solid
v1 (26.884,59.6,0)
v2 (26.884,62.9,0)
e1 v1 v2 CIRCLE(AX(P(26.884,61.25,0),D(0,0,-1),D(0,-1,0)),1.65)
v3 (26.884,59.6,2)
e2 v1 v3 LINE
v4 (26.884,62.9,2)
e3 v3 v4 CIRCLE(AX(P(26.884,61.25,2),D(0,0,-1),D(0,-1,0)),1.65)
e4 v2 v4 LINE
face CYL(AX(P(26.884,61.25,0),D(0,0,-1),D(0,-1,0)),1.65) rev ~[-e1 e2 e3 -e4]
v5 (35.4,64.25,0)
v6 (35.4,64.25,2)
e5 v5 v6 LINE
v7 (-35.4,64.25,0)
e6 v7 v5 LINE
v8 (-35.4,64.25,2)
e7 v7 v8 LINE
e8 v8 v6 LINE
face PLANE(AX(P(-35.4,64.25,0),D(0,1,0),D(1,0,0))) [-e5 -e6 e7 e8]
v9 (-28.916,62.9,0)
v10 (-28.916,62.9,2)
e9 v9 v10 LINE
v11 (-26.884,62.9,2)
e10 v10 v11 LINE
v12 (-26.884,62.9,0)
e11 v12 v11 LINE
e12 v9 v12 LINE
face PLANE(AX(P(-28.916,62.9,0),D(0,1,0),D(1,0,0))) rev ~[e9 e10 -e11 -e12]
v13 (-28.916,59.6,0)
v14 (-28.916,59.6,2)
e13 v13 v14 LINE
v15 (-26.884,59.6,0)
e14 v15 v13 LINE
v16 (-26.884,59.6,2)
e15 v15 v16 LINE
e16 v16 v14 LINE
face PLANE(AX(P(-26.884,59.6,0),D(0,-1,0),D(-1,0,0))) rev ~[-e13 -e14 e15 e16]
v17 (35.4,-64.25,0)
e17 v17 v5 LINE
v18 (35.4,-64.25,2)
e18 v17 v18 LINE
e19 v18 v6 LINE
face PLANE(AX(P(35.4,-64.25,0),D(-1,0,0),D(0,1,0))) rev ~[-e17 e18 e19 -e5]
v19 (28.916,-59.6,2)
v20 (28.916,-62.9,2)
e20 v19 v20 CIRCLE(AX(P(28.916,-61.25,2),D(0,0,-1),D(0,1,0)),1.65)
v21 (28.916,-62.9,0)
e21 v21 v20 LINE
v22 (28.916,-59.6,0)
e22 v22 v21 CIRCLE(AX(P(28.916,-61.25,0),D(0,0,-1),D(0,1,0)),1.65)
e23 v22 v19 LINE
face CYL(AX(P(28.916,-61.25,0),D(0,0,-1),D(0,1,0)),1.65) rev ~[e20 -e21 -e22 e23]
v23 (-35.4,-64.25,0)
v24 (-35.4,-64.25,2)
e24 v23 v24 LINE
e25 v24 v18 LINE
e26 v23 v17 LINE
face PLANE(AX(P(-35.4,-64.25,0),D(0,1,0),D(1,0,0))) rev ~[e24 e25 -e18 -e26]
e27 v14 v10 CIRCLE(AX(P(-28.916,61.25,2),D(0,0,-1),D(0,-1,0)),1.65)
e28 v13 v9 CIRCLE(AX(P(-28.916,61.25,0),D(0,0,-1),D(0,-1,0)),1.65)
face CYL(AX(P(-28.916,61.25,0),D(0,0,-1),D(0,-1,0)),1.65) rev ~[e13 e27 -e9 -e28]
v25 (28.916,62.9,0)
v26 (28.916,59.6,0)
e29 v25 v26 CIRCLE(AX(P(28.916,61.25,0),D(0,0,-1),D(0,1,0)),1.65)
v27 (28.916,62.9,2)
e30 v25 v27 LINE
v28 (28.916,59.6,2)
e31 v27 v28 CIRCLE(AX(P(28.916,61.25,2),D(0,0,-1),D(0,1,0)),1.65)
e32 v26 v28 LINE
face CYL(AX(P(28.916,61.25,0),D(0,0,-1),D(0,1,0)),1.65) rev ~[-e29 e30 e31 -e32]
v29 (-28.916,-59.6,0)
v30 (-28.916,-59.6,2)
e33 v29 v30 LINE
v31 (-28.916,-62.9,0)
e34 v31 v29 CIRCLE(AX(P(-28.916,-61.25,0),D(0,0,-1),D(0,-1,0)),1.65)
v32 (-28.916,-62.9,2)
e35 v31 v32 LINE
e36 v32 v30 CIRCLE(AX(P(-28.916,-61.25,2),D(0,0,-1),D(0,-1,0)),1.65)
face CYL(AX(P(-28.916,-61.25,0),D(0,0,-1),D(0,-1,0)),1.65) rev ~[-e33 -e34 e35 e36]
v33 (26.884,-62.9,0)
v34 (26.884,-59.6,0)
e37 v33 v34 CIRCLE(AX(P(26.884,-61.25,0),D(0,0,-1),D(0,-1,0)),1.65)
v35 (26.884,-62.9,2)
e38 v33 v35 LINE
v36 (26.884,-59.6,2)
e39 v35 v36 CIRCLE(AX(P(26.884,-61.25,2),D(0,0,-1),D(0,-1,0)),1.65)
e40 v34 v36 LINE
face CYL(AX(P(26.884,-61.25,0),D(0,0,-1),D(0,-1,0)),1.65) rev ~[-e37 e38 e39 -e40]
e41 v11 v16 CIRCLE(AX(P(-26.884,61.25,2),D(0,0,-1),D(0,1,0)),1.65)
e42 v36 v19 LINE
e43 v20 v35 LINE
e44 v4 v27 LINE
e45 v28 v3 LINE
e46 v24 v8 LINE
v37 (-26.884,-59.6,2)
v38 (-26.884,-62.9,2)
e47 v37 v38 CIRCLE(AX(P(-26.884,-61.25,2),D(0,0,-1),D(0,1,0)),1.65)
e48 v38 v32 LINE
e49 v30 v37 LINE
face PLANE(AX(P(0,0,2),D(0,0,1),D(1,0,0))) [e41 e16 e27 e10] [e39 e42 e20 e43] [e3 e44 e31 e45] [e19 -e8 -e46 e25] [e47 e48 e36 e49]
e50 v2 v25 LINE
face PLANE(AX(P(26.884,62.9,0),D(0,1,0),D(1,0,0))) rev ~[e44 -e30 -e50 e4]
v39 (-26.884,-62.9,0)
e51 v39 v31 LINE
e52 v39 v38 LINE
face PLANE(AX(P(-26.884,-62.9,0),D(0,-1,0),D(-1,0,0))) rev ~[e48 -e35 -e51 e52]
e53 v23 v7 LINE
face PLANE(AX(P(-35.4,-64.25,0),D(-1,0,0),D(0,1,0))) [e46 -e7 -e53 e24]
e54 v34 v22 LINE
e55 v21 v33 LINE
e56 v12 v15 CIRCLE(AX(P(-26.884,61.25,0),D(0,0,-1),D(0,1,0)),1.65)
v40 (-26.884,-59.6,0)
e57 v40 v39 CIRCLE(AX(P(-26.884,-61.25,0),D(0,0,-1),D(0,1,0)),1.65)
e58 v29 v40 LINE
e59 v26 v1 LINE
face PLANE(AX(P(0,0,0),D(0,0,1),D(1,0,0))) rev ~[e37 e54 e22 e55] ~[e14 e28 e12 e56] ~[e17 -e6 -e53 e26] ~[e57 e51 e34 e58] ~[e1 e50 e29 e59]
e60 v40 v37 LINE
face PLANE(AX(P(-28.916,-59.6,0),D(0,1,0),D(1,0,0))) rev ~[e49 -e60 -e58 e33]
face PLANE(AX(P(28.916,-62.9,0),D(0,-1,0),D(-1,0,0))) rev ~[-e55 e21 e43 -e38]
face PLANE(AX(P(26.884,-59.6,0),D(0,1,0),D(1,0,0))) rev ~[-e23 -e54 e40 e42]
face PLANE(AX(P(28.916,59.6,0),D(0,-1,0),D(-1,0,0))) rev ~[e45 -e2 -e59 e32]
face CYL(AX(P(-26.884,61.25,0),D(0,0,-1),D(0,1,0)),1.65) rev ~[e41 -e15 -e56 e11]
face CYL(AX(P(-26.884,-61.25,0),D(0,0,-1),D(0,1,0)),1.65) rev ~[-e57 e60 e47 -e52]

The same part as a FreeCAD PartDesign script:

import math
import FreeCAD as App
import Part
import Sketcher
Q = App.Units.Quantity

doc = App.newDocument("Part")
body = doc.addObject("PartDesign::Body", "Body")

sketch1 = doc.addObject("Sketcher::SketchObject", "Sketch")
body.addObject(sketch1)
sketch1.AttachmentSupport = (doc.XY_Plane, [""])
sketch1.MapMode = "FlatFace"
sketch1.addGeometry([
    Part.LineSegment(App.Vector(-35.4, 64.2, 0), App.Vector(-35.4, -64.2, 0)),
    Part.LineSegment(App.Vector(-35.4, -64.2, 0), App.Vector(35.4, -64.2, 0)),
    Part.LineSegment(App.Vector(35.4, -64.2, 0), App.Vector(35.4, 64.2, 0)),
    Part.LineSegment(App.Vector(35.4, 64.2, 0), App.Vector(-35.4, 64.2, 0)),
    Part.ArcOfCircle(Part.Circle(App.Vector(-28.9, -61.2, 0), App.Vector(0, 0, 1), 1.6), math.radians(90), math.radians(270)),
    Part.LineSegment(App.Vector(-28.9, -59.6, 0), App.Vector(-26.9, -59.6, 0)),
    Part.ArcOfCircle(Part.Circle(App.Vector(-26.9, -61.2, 0), App.Vector(0, 0, 1), 1.6), math.radians(-90), math.radians(90)),
    Part.LineSegment(App.Vector(-26.9, -62.9, 0), App.Vector(-28.9, -62.9, 0)),
    Part.ArcOfCircle(Part.Circle(App.Vector(26.9, -61.2, 0), App.Vector(0, 0, 1), 1.6), math.radians(90), math.radians(270)),
    Part.LineSegment(App.Vector(26.9, -59.6, 0), App.Vector(28.9, -59.6, 0)),
    Part.ArcOfCircle(Part.Circle(App.Vector(28.9, -61.2, 0), App.Vector(0, 0, 1), 1.6), math.radians(-90), math.radians(90)),
    Part.LineSegment(App.Vector(28.9, -62.9, 0), App.Vector(26.9, -62.9, 0)),
    Part.ArcOfCircle(Part.Circle(App.Vector(-28.9, 61.2, 0), App.Vector(0, 0, 1), 1.6), math.radians(90), math.radians(270)),
    Part.LineSegment(App.Vector(-28.9, 62.9, 0), App.Vector(-26.9, 62.9, 0)),
    Part.ArcOfCircle(Part.Circle(App.Vector(-26.9, 61.2, 0), App.Vector(0, 0, 1), 1.6), math.radians(-90), math.radians(90)),
    Part.LineSegment(App.Vector(-26.9, 59.6, 0), App.Vector(-28.9, 59.6, 0)),
    Part.ArcOfCircle(Part.Circle(App.Vector(26.9, 61.2, 0), App.Vector(0, 0, 1), 1.6), math.radians(90), math.radians(270)),
    Part.LineSegment(App.Vector(26.9, 62.9, 0), App.Vector(28.9, 62.9, 0)),
    Part.ArcOfCircle(Part.Circle(App.Vector(28.9, 61.2, 0), App.Vector(0, 0, 1), 1.6), math.radians(-90), math.radians(90)),
    Part.LineSegment(App.Vector(28.9, 59.6, 0), App.Vector(26.9, 59.6, 0)),
], False)
sketch1.addConstraint([
    Sketcher.Constraint("Coincident", 0, 2, 1, 1),
    Sketcher.Constraint("Coincident", 1, 2, 2, 1),
    Sketcher.Constraint("Coincident", 2, 2, 3, 1),
    Sketcher.Constraint("Coincident", 3, 2, 0, 1),
    Sketcher.Constraint("Tangent", 4, 1, 5, 1),
    Sketcher.Constraint("Tangent", 5, 2, 6, 2),
    Sketcher.Constraint("Tangent", 6, 1, 7, 1),
    Sketcher.Constraint("Tangent", 7, 2, 4, 2),
    Sketcher.Constraint("Tangent", 8, 1, 9, 1),
    Sketcher.Constraint("Tangent", 9, 2, 10, 2),
    Sketcher.Constraint("Tangent", 10, 1, 11, 1),
    Sketcher.Constraint("Tangent", 11, 2, 8, 2),
    Sketcher.Constraint("Tangent", 12, 1, 13, 1),
    Sketcher.Constraint("Tangent", 13, 2, 14, 2),
    Sketcher.Constraint("Tangent", 14, 1, 15, 1),
    Sketcher.Constraint("Tangent", 15, 2, 12, 2),
    Sketcher.Constraint("Tangent", 16, 1, 17, 1),
    Sketcher.Constraint("Tangent", 17, 2, 18, 2),
    Sketcher.Constraint("Tangent", 18, 1, 19, 1),
    Sketcher.Constraint("Tangent", 19, 2, 16, 2),
    Sketcher.Constraint("Vertical", 0),
    Sketcher.Constraint("Horizontal", 1),
    Sketcher.Constraint("Vertical", 2),
    Sketcher.Constraint("Horizontal", 3),
    Sketcher.Constraint("Horizontal", 5),
    Sketcher.Constraint("Horizontal", 7),
    Sketcher.Constraint("Horizontal", 9),
    Sketcher.Constraint("Horizontal", 11),
    Sketcher.Constraint("Horizontal", 13),
    Sketcher.Constraint("Horizontal", 15),
    Sketcher.Constraint("Horizontal", 17),
    Sketcher.Constraint("Horizontal", 19),
    Sketcher.Constraint("Equal", 6, 8),
    Sketcher.Constraint("Equal", 10, 12),
    Sketcher.Constraint("Equal", 14, 16),
    Sketcher.Constraint("Symmetric", 10, 3, 12, 3, -1, 1),
    Sketcher.Constraint("Symmetric", 6, 3, 16, 3, -1, 1),
    Sketcher.Constraint("Symmetric", 0, 2, 2, 2, -1, 1),
    Sketcher.Constraint("Symmetric", 6, 3, 8, 3, -2),
    Sketcher.Constraint("Vertical", 4, 3, 12, 3),
    Sketcher.Constraint("Vertical", 6, 3, 14, 3),
    Sketcher.Constraint("Vertical", 10, 3, 18, 3),
    Sketcher.Constraint("Radius", 4, Q("1.65 mm")),
    Sketcher.Constraint("DistanceX", 1, 1, 1, 2, Q("70.8 mm")),
    Sketcher.Constraint("DistanceY", 0, 2, 0, 1, Q("128.5 mm")),
    Sketcher.Constraint("DistanceY", 0, 2, 4, 3, Q("3 mm")),
    Sketcher.Constraint("DistanceX", 4, 3, 8, 3, Q("55.8 mm")),
    Sketcher.Constraint("DistanceX", 5, 1, 5, 2, Q("2.032 mm")),
])
pad1 = doc.addObject("PartDesign::Pad", "Pad")
body.addObject(pad1)
pad1.Profile = sketch1
pad1.Length = 2

doc.recompute()
